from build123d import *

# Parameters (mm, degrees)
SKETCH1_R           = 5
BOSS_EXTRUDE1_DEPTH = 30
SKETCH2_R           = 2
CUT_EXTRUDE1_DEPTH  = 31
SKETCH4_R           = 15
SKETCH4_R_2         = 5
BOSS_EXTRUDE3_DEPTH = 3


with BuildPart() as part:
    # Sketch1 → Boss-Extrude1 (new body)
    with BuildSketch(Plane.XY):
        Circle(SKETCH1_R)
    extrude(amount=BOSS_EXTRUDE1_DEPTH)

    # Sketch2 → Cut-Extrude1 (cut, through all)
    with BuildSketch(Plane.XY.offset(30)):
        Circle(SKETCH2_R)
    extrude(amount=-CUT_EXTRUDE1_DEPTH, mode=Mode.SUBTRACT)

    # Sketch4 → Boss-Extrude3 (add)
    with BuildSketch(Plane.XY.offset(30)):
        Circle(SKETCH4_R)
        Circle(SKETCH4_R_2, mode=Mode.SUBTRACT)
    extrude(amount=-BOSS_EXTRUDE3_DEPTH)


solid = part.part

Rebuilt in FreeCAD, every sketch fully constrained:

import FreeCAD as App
import Part
import Sketcher

V = App.Vector

doc = App.newDocument("Part")
body = doc.addObject("PartDesign::Body", "Body")

# Sketch on XY plane
sketch1 = body.newObject("Sketcher::SketchObject", "Sketch")
sketch1.AttachmentSupport = (doc.getObject("XY_Plane"), [""])
sketch1.MapMode = "FlatFace"
sketch1.addGeometry(Part.Circle(V(0, 0, 0), V(0, 0, 1), 5), False)
sketch1.addConstraint([
    Sketcher.Constraint("Coincident", 0, 3, -1, 1),
    Sketcher.Constraint("Diameter", 0, 10.0),
])
pad1 = body.newObject("PartDesign::Pad", "Pad")
pad1.Profile = sketch1
pad1.Length = 30

# Sketch on XY plane
sketch2 = body.newObject("Sketcher::SketchObject", "Sketch001")
sketch2.AttachmentSupport = (doc.getObject("XY_Plane"), [""])
sketch2.MapMode = "FlatFace"
sketch2.AttachmentOffset = App.Placement(V(0, 0, 30), App.Rotation())
sketch2.addGeometry(Part.Circle(V(0, 0, 0), V(0, 0, 1), 2), False)
sketch2.addConstraint([
    Sketcher.Constraint("Coincident", 0, 3, -1, 1),
    Sketcher.Constraint("Diameter", 0, 4.0),
])
pocket1 = body.newObject("PartDesign::Pocket", "Pocket")
pocket1.Profile = sketch2
pocket1.Type = "ThroughAll"

# Sketch on XY plane
sketch3 = body.newObject("Sketcher::SketchObject", "Sketch002")
sketch3.AttachmentSupport = (doc.getObject("XY_Plane"), [""])
sketch3.MapMode = "FlatFace"
sketch3.AttachmentOffset = App.Placement(V(0, 0, 30), App.Rotation())
sketch3.addGeometry([
    Part.Circle(V(0, 0, 0), V(0, 0, 1), 15),
    Part.Circle(V(0, 0, 0), V(0, 0, 1), 5),
], False)
sketch3.addConstraint([
    Sketcher.Constraint("Coincident", 0, 3, -1, 1),
    Sketcher.Constraint("Coincident", 1, 3, -1, 1),
    Sketcher.Constraint("Diameter", 0, 30.0),
    Sketcher.Constraint("Diameter", 1, 10.0),
])
pad2 = body.newObject("PartDesign::Pad", "Pad001")
pad2.Profile = sketch3
pad2.Length = 3
pad2.Reversed = True

doc.recompute()
